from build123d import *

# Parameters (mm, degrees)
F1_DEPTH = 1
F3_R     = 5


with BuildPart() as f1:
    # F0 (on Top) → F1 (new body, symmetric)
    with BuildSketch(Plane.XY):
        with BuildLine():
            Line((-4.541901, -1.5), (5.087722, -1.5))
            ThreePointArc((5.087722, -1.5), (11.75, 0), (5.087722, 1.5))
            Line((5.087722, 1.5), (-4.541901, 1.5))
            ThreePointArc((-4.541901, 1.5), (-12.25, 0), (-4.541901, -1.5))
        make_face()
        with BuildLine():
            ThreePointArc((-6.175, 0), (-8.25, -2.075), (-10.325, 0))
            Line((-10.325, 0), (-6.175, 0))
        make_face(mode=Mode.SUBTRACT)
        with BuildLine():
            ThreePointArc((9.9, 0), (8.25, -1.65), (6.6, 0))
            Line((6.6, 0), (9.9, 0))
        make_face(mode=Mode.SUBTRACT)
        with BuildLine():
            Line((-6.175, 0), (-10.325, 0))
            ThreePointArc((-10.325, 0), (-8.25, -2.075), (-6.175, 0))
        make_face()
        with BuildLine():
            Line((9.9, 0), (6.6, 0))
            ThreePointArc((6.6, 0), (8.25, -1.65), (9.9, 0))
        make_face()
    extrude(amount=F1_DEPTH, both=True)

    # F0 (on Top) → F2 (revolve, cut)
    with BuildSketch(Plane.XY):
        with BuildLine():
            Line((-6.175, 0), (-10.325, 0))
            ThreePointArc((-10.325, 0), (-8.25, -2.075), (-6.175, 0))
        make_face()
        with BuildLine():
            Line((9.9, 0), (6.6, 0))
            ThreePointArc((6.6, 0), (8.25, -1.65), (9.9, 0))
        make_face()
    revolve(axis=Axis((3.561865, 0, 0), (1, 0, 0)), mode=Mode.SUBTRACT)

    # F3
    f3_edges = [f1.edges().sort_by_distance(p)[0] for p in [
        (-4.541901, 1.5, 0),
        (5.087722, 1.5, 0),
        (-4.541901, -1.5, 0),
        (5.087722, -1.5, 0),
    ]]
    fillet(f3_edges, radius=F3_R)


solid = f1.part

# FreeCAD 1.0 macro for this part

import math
import FreeCAD as App
import Part
import Sketcher
from FreeCAD import Vector


def edges_at(feature, points):
    """Names of the edges that pass closest to the given points."""
    edges = feature.Shape.Edges
    near = lambda p: min(range(len(edges)), key=lambda i: edges[i].distToShape(Part.Vertex(*p))[0])
    return sorted({f"Edge{near(p) + 1}" for p in points})

doc = App.newDocument("Part")
body = doc.addObject("PartDesign::Body", "Body")

sketch1 = doc.addObject("Sketcher::SketchObject", "Sketch")
body.addObject(sketch1)
sketch1.AttachmentSupport = (doc.XY_Plane, [""])
sketch1.MapMode = "FlatFace"
sketch1.addGeometry(Part.LineSegment(Vector(-4.5, -1.5, 0), Vector(5.1, -1.5, 0)), False)
sketch1.addGeometry(Part.ArcOfCircle(Part.Circle(Vector(8.2, 0, 0), Vector(0, 0, 1), 3.5), math.radians(-155), math.radians(155)), False)
sketch1.addGeometry(Part.LineSegment(Vector(5.1, 1.5, 0), Vector(-4.5, 1.5, 0)), False)
sketch1.addGeometry(Part.ArcOfCircle(Part.Circle(Vector(-8.3, 0, 0), Vector(0, 0, 1), 4), math.radians(22), math.radians(338)), False)
sketch1.addConstraint(Sketcher.Constraint("Coincident", 0, 2, 1, 1))
sketch1.addConstraint(Sketcher.Constraint("Coincident", 1, 2, 2, 1))
sketch1.addConstraint(Sketcher.Constraint("Coincident", 2, 2, 3, 1))
sketch1.addConstraint(Sketcher.Constraint("Coincident", 3, 2, 0, 1))
sketch1.addConstraint(Sketcher.Constraint("Horizontal", 0))
sketch1.addConstraint(Sketcher.Constraint("Horizontal", 2))
sketch1.addConstraint(Sketcher.Constraint("Symmetric", 1, 3, 3, 3, -1, 1))
sketch1.addConstraint(Sketcher.Constraint("Symmetric", 0, 2, 1, 2, -1))
sketch1.addConstraint(Sketcher.Constraint("Radius", 3, 4.0))
sketch1.addConstraint(Sketcher.Constraint("Radius", 1, 3.5))
sketch1.addConstraint(Sketcher.Constraint("DistanceY", 0, 2, 1, 2, 3.0))
sketch1.addConstraint(Sketcher.Constraint("DistanceX", 3, 3, 1, 3, 16.5))
pad1 = doc.addObject("PartDesign::Pad", "Pad")
body.addObject(pad1)
pad1.Profile = sketch1
pad1.Length = 2
pad1.Midplane = True

sketch2 = doc.addObject("Sketcher::SketchObject", "Sketch001")
body.addObject(sketch2)
sketch2.AttachmentSupport = (doc.XY_Plane, [""])
sketch2.MapMode = "FlatFace"
sketch2.addGeometry(Part.LineSegment(Vector(-6.2, 0, 0), Vector(-10.3, 0, 0)), False)
sketch2.addGeometry(Part.ArcOfCircle(Part.Circle(Vector(-8.2, 0, 0), Vector(0, 0, 1), 2.1), math.radians(180), math.radians(360)), False)
sketch2.addGeometry(Part.LineSegment(Vector(9.9, 0, 0), Vector(6.6, 0, 0)), False)
sketch2.addGeometry(Part.ArcOfCircle(Part.Circle(Vector(8.2, 0, 0), Vector(0, 0, 1), 1.6), math.radians(180), math.radians(360)), False)
sketch2.addConstraint(Sketcher.Constraint("Coincident", 0, 1, 1, 2))
sketch2.addConstraint(Sketcher.Constraint("Coincident", 1, 1, 0, 2))
sketch2.addConstraint(Sketcher.Constraint("Coincident", 2, 1, 3, 2))
sketch2.addConstraint(Sketcher.Constraint("Coincident", 3, 1, 2, 2))
sketch2.addConstraint(Sketcher.Constraint("Horizontal", 0))
sketch2.addConstraint(Sketcher.Constraint("Horizontal", 2))
sketch2.addConstraint(Sketcher.Constraint("Symmetric", 1, 3, 3, 3, -1, 1))
sketch2.addConstraint(Sketcher.Constraint("PointOnObject", 1, 3, -1))
sketch2.addConstraint(Sketcher.Constraint("PointOnObject", 0, 1, -1))
sketch2.addConstraint(Sketcher.Constraint("PointOnObject", 2, 1, -1))
sketch2.addConstraint(Sketcher.Constraint("Radius", 3, 1.65))
sketch2.addConstraint(Sketcher.Constraint("Radius", 1, 2.075))
sketch2.addConstraint(Sketcher.Constraint("DistanceX", -1, 1, 2, 1, 9.9))
groove = doc.addObject("PartDesign::Groove", "Groove")
body.addObject(groove)
groove.Profile = sketch2
groove.ReferenceAxis = (sketch2, ["H_Axis"])
groove.Angle = 360
doc.recompute()

fillet = doc.addObject("PartDesign::Fillet", "Fillet")
body.addObject(fillet)
fillet.Base = (groove, edges_at(groove, [
    (-4.542, 1.5, 0),
    (5.088, 1.5, 0),
    (-4.542, -1.5, 0),
    (5.088, -1.5, 0),
]))
fillet.Radius = 5

doc.recompute()
